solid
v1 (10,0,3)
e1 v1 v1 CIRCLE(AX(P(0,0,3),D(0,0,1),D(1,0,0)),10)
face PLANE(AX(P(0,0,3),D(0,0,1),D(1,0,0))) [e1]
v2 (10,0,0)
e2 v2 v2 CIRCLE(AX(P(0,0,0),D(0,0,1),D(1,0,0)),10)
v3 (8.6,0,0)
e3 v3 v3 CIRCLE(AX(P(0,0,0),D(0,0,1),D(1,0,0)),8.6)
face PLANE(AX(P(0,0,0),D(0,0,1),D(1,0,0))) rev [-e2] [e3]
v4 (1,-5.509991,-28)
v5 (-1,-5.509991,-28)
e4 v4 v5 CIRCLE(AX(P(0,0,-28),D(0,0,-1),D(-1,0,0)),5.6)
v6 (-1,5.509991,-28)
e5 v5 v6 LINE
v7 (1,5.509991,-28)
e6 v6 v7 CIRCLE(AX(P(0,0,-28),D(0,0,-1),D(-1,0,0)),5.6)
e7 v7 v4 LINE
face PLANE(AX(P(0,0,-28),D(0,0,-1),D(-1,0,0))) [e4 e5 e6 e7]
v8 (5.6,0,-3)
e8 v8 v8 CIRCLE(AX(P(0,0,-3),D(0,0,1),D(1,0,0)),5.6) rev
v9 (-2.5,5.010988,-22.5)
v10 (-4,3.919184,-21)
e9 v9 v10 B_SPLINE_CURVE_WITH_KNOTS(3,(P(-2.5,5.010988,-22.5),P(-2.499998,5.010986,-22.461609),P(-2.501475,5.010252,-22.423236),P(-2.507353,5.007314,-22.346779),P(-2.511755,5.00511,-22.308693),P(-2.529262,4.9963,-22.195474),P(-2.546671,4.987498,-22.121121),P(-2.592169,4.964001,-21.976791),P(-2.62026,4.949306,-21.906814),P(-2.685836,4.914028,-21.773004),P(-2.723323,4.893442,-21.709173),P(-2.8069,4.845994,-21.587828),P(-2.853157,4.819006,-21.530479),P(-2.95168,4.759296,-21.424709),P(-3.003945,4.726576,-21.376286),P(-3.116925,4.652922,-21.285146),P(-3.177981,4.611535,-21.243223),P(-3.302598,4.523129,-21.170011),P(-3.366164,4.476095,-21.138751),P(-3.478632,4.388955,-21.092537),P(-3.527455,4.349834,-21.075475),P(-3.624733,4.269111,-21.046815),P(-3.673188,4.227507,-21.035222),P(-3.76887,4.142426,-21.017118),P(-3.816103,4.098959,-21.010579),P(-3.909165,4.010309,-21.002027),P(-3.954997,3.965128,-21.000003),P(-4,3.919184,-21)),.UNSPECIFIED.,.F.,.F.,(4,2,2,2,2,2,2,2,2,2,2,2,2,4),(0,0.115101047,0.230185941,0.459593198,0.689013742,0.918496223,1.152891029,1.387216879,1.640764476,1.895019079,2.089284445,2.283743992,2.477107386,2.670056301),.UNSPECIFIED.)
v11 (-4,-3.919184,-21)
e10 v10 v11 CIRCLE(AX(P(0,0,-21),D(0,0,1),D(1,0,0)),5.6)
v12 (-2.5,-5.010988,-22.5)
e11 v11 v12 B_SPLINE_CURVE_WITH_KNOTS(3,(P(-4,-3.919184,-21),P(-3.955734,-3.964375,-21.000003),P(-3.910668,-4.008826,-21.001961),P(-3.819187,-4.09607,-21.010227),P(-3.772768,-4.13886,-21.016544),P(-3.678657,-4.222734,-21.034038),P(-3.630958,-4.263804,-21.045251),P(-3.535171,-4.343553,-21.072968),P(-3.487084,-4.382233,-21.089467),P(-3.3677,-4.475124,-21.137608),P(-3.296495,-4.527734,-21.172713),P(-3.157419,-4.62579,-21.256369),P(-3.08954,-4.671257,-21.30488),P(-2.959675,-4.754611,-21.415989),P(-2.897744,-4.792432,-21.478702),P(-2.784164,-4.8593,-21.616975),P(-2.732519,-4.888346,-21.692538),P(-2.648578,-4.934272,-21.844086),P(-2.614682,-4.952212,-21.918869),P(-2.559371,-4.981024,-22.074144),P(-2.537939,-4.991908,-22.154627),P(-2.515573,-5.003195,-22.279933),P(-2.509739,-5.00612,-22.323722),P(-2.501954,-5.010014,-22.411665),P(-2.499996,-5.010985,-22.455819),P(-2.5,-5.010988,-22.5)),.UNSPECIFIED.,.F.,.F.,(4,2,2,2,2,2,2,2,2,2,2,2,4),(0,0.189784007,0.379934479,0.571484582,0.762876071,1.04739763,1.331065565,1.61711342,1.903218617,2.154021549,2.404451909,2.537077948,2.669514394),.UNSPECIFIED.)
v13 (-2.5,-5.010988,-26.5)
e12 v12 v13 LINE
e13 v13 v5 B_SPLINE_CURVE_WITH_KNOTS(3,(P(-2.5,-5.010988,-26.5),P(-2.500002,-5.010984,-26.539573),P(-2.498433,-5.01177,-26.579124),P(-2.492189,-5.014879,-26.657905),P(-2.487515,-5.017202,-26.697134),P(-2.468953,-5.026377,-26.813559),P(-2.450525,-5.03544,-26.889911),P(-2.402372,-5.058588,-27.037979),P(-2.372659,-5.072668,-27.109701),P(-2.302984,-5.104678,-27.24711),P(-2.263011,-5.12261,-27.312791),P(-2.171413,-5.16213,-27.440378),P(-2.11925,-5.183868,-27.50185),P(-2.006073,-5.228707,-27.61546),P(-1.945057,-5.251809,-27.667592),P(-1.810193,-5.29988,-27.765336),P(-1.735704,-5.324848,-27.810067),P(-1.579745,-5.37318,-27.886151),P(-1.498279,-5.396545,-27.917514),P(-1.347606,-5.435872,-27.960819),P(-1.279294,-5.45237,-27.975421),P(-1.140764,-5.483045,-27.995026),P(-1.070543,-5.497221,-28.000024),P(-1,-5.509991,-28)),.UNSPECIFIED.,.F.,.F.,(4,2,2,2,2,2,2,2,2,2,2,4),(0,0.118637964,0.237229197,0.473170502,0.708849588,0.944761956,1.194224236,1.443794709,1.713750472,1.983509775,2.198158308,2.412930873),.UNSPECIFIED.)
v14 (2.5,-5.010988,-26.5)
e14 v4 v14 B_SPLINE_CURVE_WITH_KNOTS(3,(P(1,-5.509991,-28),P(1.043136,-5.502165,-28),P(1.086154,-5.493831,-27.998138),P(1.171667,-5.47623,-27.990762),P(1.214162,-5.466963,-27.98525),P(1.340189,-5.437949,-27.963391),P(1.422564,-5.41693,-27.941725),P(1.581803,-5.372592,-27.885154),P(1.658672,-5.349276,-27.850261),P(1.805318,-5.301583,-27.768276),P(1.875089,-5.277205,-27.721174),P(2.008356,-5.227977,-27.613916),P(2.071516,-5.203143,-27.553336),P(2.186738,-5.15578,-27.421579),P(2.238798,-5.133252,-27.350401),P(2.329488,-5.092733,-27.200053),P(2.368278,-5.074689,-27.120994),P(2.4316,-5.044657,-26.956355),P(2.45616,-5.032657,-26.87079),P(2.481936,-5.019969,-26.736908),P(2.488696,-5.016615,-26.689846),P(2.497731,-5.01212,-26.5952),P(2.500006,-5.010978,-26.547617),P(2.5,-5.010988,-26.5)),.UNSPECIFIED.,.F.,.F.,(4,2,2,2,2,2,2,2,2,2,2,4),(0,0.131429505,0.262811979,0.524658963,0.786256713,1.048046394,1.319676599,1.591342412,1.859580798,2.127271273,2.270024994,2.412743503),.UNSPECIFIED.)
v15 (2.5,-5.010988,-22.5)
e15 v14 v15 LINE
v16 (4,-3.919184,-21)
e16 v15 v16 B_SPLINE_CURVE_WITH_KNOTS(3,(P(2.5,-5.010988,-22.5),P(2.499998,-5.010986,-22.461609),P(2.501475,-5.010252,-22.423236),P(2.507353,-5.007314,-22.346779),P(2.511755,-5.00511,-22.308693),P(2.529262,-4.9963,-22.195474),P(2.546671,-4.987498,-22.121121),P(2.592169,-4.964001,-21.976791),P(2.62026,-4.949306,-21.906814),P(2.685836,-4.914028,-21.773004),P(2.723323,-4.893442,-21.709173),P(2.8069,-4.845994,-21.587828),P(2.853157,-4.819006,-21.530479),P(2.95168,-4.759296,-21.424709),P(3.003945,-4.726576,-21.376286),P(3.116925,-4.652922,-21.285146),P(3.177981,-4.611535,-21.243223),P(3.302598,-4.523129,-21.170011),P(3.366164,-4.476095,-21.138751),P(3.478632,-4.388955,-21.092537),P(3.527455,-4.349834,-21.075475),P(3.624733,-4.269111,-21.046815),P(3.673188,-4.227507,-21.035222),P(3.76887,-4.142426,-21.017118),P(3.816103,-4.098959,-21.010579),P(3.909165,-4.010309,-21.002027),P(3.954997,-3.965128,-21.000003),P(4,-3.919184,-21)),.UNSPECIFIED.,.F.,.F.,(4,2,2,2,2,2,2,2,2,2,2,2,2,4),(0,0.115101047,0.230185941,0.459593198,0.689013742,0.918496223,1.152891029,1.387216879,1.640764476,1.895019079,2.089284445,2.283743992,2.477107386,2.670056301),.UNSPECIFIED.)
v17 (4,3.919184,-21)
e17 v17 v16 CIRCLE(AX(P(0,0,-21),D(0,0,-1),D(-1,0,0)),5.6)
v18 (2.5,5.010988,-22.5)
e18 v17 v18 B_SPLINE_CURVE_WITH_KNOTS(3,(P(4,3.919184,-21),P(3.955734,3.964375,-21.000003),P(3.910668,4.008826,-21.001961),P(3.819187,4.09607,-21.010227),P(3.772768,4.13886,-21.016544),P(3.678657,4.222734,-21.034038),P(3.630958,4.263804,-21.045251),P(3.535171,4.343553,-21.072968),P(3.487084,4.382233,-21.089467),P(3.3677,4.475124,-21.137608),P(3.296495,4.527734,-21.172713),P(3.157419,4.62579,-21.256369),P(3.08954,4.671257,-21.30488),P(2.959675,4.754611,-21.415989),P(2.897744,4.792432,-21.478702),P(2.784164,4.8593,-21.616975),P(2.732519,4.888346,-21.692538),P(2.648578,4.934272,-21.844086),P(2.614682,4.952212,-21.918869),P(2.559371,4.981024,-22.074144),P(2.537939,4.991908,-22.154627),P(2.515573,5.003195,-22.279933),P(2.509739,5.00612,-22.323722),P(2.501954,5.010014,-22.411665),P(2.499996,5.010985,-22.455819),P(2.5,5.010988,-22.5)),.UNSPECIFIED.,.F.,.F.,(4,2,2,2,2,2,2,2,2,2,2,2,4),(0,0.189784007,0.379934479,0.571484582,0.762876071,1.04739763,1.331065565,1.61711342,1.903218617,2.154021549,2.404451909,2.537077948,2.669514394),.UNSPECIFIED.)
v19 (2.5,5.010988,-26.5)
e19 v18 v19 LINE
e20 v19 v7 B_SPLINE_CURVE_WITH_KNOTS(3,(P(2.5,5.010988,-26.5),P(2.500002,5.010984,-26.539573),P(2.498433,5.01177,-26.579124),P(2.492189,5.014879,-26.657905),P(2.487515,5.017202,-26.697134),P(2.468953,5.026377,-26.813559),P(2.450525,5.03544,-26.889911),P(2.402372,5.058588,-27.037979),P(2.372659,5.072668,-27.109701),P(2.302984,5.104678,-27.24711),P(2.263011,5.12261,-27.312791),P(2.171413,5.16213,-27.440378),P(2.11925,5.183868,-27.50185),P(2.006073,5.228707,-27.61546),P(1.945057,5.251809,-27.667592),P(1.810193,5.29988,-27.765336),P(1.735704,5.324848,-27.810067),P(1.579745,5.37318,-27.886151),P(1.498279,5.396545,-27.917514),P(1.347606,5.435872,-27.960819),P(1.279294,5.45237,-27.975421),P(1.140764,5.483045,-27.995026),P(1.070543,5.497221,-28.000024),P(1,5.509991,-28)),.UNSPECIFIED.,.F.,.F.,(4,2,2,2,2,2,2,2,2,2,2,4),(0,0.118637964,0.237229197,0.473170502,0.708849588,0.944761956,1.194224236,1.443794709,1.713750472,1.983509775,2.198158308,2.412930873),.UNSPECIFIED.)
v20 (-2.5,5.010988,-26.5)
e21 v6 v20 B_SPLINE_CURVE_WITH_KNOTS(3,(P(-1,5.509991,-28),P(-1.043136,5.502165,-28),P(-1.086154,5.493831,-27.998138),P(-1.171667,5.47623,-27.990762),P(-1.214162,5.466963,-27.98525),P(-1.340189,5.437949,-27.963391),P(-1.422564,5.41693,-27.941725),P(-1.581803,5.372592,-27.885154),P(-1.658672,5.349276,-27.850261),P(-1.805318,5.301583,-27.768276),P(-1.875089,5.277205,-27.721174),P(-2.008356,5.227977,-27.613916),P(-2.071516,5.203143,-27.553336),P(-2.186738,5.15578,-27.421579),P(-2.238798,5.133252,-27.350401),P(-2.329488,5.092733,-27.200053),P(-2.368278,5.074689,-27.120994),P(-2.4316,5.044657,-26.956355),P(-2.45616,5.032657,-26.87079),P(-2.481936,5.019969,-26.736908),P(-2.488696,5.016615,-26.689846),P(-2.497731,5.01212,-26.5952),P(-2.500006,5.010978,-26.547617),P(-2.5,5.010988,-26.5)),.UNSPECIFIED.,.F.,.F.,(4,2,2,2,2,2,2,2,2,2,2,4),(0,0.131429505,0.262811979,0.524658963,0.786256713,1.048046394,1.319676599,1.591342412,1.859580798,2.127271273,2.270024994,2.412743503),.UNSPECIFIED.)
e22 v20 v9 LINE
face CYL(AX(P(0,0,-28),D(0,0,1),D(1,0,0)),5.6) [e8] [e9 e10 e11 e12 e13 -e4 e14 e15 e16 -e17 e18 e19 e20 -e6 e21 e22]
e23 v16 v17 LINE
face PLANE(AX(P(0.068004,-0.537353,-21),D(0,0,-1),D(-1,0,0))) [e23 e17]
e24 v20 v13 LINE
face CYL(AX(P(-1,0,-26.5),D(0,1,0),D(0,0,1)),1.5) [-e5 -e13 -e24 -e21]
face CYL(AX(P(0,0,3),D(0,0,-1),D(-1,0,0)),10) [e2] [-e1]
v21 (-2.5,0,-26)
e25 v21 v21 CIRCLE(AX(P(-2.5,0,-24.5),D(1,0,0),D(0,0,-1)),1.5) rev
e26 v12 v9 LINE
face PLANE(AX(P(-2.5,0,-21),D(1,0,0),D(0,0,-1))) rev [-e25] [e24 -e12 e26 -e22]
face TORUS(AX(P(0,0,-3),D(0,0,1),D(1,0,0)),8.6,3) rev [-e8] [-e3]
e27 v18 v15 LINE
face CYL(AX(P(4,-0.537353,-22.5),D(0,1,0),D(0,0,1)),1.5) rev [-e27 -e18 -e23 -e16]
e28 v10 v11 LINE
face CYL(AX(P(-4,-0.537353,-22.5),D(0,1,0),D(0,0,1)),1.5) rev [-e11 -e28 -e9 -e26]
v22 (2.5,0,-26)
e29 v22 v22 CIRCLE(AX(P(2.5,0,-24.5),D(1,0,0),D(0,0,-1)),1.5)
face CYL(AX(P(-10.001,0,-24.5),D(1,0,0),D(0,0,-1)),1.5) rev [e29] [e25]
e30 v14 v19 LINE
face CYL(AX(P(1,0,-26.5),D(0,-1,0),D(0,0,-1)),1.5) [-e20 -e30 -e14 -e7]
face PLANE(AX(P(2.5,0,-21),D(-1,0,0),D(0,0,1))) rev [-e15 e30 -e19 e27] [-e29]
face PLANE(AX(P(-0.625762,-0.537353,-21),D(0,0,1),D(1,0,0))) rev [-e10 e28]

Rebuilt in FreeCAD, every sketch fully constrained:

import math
import FreeCAD as App
import Part
import Sketcher
Q = App.Units.Quantity


def edges_at(feature, points):
    """Names of the edges that pass closest to the given points."""
    edges = feature.Shape.Edges
    near = lambda p: min(range(len(edges)), key=lambda i: edges[i].distToShape(Part.Vertex(*p))[0])
    return sorted({f"Edge{near(p) + 1}" for p in points})

doc = App.newDocument("Part")
body = doc.addObject("PartDesign::Body", "Body")

sketch1 = body.newObject("Sketcher::SketchObject", "Sketch")
sketch1.AttachmentSupport = (doc.getObject("XY_Plane"), [""])
sketch1.MapMode = "FlatFace"
sketch1.addGeometry(Part.Circle(App.Vector(0, 0, 0), App.Vector(0, 0, 1), 10), False)
sketch1.addConstraint([
    Sketcher.Constraint("Coincident", 0, 3, -1, 1),
    Sketcher.Constraint("Diameter", 0, Q("20 mm")),
])
pad1 = body.newObject("PartDesign::Pad", "Pad")
pad1.Profile = sketch1
pad1.Length = 3

sketch2 = body.newObject("Sketcher::SketchObject", "Sketch001")
sketch2.AttachmentSupport = (doc.getObject("XY_Plane"), [""])
sketch2.MapMode = "FlatFace"
sketch2.addGeometry(Part.Circle(App.Vector(0, 0, 0), App.Vector(0, 0, 1), 6), False)
sketch2.addConstraint([
    Sketcher.Constraint("Coincident", 0, 3, -1, 1),
    Sketcher.Constraint("Diameter", 0, Q("11.2 mm")),
])
pad2 = body.newObject("PartDesign::Pad", "Pad001")
pad2.Profile = sketch2
pad2.Length = 28
pad2.Reversed = True

sketch3 = body.newObject("Sketcher::SketchObject", "Sketch002")
sketch3.AttachmentSupport = (doc.getObject("XY_Plane"), [""])
sketch3.MapMode = "FlatFace"
sketch3.AttachmentOffset = App.Placement(App.Vector(0, 0, -28), App.Rotation())
sketch3.addGeometry([
    Part.ArcOfCircle(Part.Circle(App.Vector(-1, -1, 0), App.Vector(0, 0, 1), 7), math.radians(105), math.radians(255)),
    Part.LineSegment(App.Vector(-2, 7, 0), App.Vector(-2, -8, 0)),
    Part.ArcOfCircle(Part.Circle(App.Vector(0, -1, 0), App.Vector(0, 0, 1), 8), math.radians(-71), math.radians(71)),
    Part.LineSegment(App.Vector(2, -8, 0), App.Vector(2, 7, 0)),
], False)
sketch3.addConstraint([
    Sketcher.Constraint("Coincident", 0, 1, 1, 1),
    Sketcher.Constraint("Coincident", 1, 2, 0, 2),
    Sketcher.Constraint("Coincident", 2, 1, 3, 1),
    Sketcher.Constraint("Coincident", 3, 2, 2, 2),
    Sketcher.Constraint("Vertical", 1),
    Sketcher.Constraint("Vertical", 3),
    Sketcher.Constraint("Symmetric", 1, 2, 2, 1, -2),
    Sketcher.Constraint("Horizontal", 0, 3, 2, 3),
    Sketcher.Constraint("DistanceX", 1, 2, 2, 1, Q("5 mm")),
    Sketcher.Constraint("Radius", 0, Q("7.440451 mm")),
    Sketcher.Constraint("Radius", 2, Q("7.600142 mm")),
    Sketcher.Constraint("DistanceY", 1, 2, 1, 1, Q("14.401048 mm")),
    Sketcher.Constraint("DistanceY", -1, 1, 0, 1, Q("6.663172 mm")),
])
pocket1 = body.newObject("PartDesign::Pocket", "Pocket")
pocket1.Profile = sketch3
pocket1.Length = 7
pocket1.Reversed = True

sketch4 = body.newObject("Sketcher::SketchObject", "Sketch003")
sketch4.AttachmentSupport = (doc.getObject("YZ_Plane"), [""])
sketch4.MapMode = "FlatFace"
sketch4.AttachmentOffset = App.Placement(App.Vector(0, 0, 2.5), App.Rotation())
sketch4.addGeometry(Part.Circle(App.Vector(0, -24.5, 0), App.Vector(0, 0, 1), 1.5), False)
sketch4.addConstraint([
    Sketcher.Constraint("PointOnObject", 0, 3, -2),
    Sketcher.Constraint("Diameter", 0, Q("3 mm")),
    Sketcher.Constraint("DistanceY", 0, 3, -1, 1, Q("24.5 mm")),
])
pocket2 = body.newObject("PartDesign::Pocket", "Pocket001")
pocket2.Profile = sketch4
pocket2.Type = "UpToFirst"
doc.recompute()

fillet = body.newObject("PartDesign::Fillet", "Fillet")
fillet.Base = (pocket2, edges_at(pocket2, [(5.6, 0, 0)]))
fillet.Radius = 3
doc.recompute()

fillet2 = body.newObject("PartDesign::Fillet", "Fillet001")
fillet2.Base = (fillet, edges_at(fillet, [
    (2.5, 0, -21),
    (-2.5, 0, -21),
    (2.5, 0, -28),
    (-2.5, 0, -28),
]))
fillet2.Radius = 1.5

doc.recompute()
